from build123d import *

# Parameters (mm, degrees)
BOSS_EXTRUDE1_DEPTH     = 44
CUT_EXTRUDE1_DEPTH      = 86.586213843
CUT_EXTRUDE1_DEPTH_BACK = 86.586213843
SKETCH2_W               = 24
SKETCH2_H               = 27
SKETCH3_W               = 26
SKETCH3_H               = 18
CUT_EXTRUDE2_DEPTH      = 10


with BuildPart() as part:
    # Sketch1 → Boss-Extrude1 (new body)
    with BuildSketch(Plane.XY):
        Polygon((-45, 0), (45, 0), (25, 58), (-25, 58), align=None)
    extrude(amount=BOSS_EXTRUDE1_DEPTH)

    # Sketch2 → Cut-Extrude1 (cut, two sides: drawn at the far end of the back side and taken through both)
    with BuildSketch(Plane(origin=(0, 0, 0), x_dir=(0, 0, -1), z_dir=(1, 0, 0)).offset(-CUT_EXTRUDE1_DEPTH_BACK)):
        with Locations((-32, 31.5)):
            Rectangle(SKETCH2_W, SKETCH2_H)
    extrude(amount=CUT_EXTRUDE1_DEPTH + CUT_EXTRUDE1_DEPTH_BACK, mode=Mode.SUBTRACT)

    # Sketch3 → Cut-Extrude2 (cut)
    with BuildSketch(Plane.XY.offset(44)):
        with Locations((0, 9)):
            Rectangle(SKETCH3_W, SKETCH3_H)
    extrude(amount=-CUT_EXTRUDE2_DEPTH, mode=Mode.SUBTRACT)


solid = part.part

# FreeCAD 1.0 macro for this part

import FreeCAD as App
import Part
import Sketcher

V = App.Vector


def add_polygon(sketch, points):
    """Adds a closed chain of lines whose ends are joined by coincident constraints."""
    first, n = sketch.GeometryCount, len(points)
    for a, b in zip(points, points[1:] + points[:1]):
        sketch.addGeometry(Part.LineSegment(App.Vector(*a, 0), App.Vector(*b, 0)), False)
    for i in range(n):
        sketch.addConstraint(Sketcher.Constraint("Coincident", first + i, 2, first + (i + 1) % n, 1))

doc = App.newDocument("Part")
body = doc.addObject("PartDesign::Body", "Body")

# Sketch on XY plane
sketch1 = doc.addObject("Sketcher::SketchObject", "Sketch")
body.addObject(sketch1)
sketch1.AttachmentSupport = (doc.XY_Plane, [""])
sketch1.MapMode = "FlatFace"
add_polygon(sketch1, [(-45, 0), (45, 0), (25, 58), (-25, 58)])  # lines 0-3
sketch1.addConstraint([
    Sketcher.Constraint("Horizontal", 0),
    Sketcher.Constraint("Horizontal", 2),
    Sketcher.Constraint("Symmetric", 0, 2, 3, 2, -1, 1),
    Sketcher.Constraint("Equal", 1, 3),
    Sketcher.Constraint("DistanceX", 0, 1, 0, 2, 90.0),
    Sketcher.Constraint("DistanceX", 2, 2, 2, 1, 50.0),
    Sketcher.Constraint("DistanceY", -1, 1, 1, 2, 58.0),
])
pad1 = doc.addObject("PartDesign::Pad", "Pad")
body.addObject(pad1)
pad1.Profile = sketch1
pad1.Length = 44

# Sketch on YZ plane
sketch2 = doc.addObject("Sketcher::SketchObject", "Sketch001")
body.addObject(sketch2)
sketch2.AttachmentSupport = (doc.YZ_Plane, [""])
sketch2.MapMode = "FlatFace"
add_polygon(sketch2, [(45, 44), (18, 44), (18, 20), (45, 20)])  # lines 0-3
sketch2.addConstraint([
    Sketcher.Constraint("Horizontal", 0),
    Sketcher.Constraint("Vertical", 1),
    Sketcher.Constraint("Horizontal", 2),
    Sketcher.Constraint("Vertical", 3),
    Sketcher.Constraint("DistanceX", 0, 2, 0, 1, 27.0),
    Sketcher.Constraint("DistanceY", 1, 2, 1, 1, 24.0),
    Sketcher.Constraint("DistanceX", -1, 1, 0, 2, 18.0),
    Sketcher.Constraint("DistanceY", -1, 1, 0, 2, 44.0),
])
pocket1 = doc.addObject("PartDesign::Pocket", "Pocket")
body.addObject(pocket1)
pocket1.Profile = sketch2
pocket1.Type = "ThroughAll"
pocket1.Midplane = True

# Sketch on XY plane
sketch3 = doc.addObject("Sketcher::SketchObject", "Sketch002")
body.addObject(sketch3)
sketch3.AttachmentSupport = (doc.XY_Plane, [""])
sketch3.MapMode = "FlatFace"
sketch3.AttachmentOffset = App.Placement(V(0, 0, 44), App.Rotation())
add_polygon(sketch3, [(-13, 18), (-13, 0), (13, 0), (13, 18)])  # lines 0-3
sketch3.addConstraint([
    Sketcher.Constraint("Vertical", 0),
    Sketcher.Constraint("Horizontal", 1),
    Sketcher.Constraint("Vertical", 2),
    Sketcher.Constraint("Horizontal", 3),
    Sketcher.Constraint("Symmetric", 0, 2, 1, 2, -1, 1),
    Sketcher.Constraint("DistanceX", 1, 1, 1, 2, 26.0),
    Sketcher.Constraint("DistanceY", 0, 2, 0, 1, 18.0),
])
pocket2 = doc.addObject("PartDesign::Pocket", "Pocket001")
body.addObject(pocket2)
pocket2.Profile = sketch3
pocket2.Length = 10

doc.recompute()
